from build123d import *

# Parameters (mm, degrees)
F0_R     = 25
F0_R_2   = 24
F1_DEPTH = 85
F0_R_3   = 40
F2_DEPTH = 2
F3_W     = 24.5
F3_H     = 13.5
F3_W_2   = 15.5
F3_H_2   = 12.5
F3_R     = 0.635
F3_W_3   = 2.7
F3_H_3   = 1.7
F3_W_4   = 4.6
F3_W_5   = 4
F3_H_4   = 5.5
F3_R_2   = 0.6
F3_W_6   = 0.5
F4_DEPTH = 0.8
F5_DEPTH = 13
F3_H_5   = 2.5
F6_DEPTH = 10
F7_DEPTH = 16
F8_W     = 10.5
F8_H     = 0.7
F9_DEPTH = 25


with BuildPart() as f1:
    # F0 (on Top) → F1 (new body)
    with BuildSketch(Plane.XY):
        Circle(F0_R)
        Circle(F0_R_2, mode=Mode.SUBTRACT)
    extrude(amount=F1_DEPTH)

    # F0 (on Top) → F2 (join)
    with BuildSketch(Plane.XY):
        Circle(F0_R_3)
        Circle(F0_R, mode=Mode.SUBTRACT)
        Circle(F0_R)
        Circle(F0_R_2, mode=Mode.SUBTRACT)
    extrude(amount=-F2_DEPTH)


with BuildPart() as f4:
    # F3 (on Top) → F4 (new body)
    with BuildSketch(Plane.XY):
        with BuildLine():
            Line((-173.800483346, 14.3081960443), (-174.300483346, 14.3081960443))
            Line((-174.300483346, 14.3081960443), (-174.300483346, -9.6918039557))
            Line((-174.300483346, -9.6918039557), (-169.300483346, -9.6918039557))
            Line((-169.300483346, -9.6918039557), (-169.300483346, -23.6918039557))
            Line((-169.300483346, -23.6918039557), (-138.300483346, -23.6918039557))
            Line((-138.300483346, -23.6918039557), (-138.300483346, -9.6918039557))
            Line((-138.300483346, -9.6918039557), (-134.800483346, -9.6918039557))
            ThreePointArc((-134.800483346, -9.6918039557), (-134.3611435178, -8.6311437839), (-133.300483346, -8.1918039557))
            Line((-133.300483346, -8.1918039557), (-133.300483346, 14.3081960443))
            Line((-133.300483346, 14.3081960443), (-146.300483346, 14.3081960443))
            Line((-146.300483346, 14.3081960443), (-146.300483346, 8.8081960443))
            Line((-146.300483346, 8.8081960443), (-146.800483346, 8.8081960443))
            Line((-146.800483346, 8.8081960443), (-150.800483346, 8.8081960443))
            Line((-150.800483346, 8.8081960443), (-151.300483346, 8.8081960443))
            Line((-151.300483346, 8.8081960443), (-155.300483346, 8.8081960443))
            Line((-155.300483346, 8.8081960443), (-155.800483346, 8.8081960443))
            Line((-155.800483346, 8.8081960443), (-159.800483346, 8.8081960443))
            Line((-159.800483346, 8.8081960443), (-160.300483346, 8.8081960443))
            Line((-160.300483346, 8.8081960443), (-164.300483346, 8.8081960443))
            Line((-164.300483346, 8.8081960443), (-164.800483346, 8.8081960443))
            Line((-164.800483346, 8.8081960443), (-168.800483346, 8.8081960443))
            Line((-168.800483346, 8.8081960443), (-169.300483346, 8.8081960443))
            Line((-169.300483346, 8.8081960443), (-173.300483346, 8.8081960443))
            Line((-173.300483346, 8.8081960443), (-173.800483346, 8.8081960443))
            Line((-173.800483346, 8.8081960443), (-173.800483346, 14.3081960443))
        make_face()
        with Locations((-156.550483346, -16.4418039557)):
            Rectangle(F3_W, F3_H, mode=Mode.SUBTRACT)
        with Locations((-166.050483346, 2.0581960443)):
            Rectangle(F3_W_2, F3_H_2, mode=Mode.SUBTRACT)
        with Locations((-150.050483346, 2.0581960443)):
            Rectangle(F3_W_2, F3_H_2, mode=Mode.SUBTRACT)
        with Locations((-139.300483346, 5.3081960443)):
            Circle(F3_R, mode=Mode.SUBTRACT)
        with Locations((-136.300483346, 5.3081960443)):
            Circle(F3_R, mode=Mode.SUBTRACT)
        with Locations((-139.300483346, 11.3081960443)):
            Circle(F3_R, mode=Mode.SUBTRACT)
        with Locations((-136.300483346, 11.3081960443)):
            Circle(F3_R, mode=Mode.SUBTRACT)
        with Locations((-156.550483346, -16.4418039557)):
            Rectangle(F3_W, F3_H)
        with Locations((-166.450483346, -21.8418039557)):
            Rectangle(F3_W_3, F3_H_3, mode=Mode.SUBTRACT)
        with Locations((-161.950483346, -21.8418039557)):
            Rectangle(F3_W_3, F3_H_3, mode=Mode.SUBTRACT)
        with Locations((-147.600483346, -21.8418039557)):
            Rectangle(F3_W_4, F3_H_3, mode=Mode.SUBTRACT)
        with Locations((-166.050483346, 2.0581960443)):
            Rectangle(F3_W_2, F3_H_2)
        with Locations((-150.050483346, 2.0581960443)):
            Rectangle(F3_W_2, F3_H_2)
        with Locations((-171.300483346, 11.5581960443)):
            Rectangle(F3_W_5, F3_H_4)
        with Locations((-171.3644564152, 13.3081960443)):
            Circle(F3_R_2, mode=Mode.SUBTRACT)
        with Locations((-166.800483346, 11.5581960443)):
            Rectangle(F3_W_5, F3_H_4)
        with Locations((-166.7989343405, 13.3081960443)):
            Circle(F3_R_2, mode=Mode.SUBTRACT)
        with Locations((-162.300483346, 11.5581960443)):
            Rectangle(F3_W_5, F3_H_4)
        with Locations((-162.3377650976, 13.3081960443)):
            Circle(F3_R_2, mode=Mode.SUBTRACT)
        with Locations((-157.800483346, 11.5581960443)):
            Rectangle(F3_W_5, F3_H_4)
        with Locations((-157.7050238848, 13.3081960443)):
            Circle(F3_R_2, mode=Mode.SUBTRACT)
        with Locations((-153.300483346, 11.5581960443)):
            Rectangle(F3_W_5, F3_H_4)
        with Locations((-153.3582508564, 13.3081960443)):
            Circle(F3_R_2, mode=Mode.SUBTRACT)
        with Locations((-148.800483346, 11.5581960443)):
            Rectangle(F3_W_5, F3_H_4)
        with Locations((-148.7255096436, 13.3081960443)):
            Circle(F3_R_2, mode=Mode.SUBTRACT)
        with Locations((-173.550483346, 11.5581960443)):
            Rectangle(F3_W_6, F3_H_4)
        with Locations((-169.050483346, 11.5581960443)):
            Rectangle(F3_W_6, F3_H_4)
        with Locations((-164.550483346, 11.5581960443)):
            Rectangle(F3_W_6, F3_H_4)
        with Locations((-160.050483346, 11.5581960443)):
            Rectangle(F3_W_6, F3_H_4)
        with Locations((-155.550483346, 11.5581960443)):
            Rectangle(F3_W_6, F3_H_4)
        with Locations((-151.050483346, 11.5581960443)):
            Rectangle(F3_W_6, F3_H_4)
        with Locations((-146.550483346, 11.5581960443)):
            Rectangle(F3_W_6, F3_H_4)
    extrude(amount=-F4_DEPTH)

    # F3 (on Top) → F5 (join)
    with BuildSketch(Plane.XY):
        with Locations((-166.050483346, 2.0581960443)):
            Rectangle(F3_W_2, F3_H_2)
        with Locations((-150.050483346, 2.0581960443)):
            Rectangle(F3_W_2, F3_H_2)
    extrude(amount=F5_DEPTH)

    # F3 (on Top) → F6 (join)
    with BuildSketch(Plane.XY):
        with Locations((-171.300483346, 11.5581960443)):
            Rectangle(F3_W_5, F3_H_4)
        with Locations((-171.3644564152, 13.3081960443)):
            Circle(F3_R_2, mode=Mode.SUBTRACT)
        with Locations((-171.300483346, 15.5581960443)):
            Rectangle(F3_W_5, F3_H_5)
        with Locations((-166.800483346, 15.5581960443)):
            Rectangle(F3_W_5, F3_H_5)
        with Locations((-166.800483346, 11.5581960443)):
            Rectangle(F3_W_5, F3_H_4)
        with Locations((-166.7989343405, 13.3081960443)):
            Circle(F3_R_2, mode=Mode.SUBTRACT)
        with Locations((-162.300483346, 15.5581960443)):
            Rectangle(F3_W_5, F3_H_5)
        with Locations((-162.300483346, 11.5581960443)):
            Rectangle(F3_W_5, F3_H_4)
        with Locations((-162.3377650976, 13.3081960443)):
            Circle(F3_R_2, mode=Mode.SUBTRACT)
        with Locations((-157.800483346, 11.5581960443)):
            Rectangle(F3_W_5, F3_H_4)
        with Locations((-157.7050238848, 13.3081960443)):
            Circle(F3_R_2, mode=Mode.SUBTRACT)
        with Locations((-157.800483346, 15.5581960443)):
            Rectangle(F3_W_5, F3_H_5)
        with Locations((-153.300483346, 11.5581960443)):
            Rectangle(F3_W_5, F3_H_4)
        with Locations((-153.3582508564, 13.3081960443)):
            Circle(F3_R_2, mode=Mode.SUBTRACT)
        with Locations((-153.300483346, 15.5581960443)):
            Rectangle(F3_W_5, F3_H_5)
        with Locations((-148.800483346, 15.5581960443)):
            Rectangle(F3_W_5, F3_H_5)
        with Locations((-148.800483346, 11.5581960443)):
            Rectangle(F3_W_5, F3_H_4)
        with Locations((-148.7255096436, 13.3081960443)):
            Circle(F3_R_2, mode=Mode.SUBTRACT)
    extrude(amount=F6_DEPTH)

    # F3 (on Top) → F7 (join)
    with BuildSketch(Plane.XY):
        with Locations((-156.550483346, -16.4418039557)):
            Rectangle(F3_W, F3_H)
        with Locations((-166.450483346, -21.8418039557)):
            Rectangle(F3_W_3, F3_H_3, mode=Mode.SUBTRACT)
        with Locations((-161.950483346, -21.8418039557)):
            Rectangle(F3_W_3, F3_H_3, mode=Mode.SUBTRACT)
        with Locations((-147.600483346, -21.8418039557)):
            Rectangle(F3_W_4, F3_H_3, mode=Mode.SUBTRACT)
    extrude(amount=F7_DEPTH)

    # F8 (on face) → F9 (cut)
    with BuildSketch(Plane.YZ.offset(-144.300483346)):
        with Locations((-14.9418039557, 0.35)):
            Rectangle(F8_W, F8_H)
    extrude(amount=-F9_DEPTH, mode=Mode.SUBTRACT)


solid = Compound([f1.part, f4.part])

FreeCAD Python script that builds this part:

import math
import FreeCAD as App
import Part
import Sketcher
from FreeCAD import Vector


def add_polygon(sketch, points):
    """Adds a closed chain of lines whose ends are joined by coincident constraints."""
    first, n = sketch.GeometryCount, len(points)
    for a, b in zip(points, points[1:] + points[:1]):
        sketch.addGeometry(Part.LineSegment(App.Vector(*a, 0), App.Vector(*b, 0)), False)
    for i in range(n):
        sketch.addConstraint(Sketcher.Constraint("Coincident", first + i, 2, first + (i + 1) % n, 1))

doc = App.newDocument("Part")
body = doc.addObject("PartDesign::Body", "Body")

# Sketch on XY plane
sketch1 = body.newObject("Sketcher::SketchObject", "Sketch")
sketch1.AttachmentSupport = (doc.getObject("XY_Plane"), [""])
sketch1.MapMode = "FlatFace"
sketch1.addGeometry([
    Part.Circle(Vector(0, 0, 0), Vector(0, 0, 1), 25),
    Part.Circle(Vector(0, 0, 0), Vector(0, 0, 1), 24),
], False)
sketch1.addConstraint([
    Sketcher.Constraint("Coincident", 0, 3, -1, 1),
    Sketcher.Constraint("Coincident", 1, 3, -1, 1),
    Sketcher.Constraint("Diameter", 0, 50.0),
    Sketcher.Constraint("Diameter", 1, 48.0),
])
pad1 = body.newObject("PartDesign::Pad", "Pad")
pad1.Profile = sketch1
pad1.Length = 85

# Sketch on XY plane
sketch2 = body.newObject("Sketcher::SketchObject", "Sketch001")
sketch2.AttachmentSupport = (doc.getObject("XY_Plane"), [""])
sketch2.MapMode = "FlatFace"
sketch2.addGeometry([
    Part.Circle(Vector(0, 0, 0), Vector(0, 0, 1), 40),
    Part.Circle(Vector(0, 0, 0), Vector(0, 0, 1), 24),
], False)
sketch2.addConstraint([
    Sketcher.Constraint("Coincident", 0, 3, -1, 1),
    Sketcher.Constraint("Coincident", 1, 3, -1, 1),
    Sketcher.Constraint("Diameter", 0, 80.0),
    Sketcher.Constraint("Diameter", 1, 48.0),
])
pad2 = body.newObject("PartDesign::Pad", "Pad001")
pad2.Profile = sketch2
pad2.Length = 2
pad2.Reversed = True
body2 = doc.addObject("PartDesign::Body", "Body001")

# Sketch on XY plane
sketch3 = body2.newObject("Sketcher::SketchObject", "Sketch002")
sketch3.AttachmentSupport = (doc.getObject("XY_Plane001"), [""])
sketch3.MapMode = "FlatFace"
sketch3.addGeometry(Part.LineSegment(Vector(-174.3, 14.3, 0), Vector(-174.3, -9.7, 0)), False)  # 0
sketch3.addGeometry(Part.LineSegment(Vector(-174.3, -9.7, 0), Vector(-169.3, -9.7, 0)), False)  # 1
sketch3.addGeometry(Part.LineSegment(Vector(-169.3, -9.7, 0), Vector(-169.3, -23.7, 0)), False)  # 2
sketch3.addGeometry(Part.LineSegment(Vector(-169.3, -23.7, 0), Vector(-138.3, -23.7, 0)), False)  # 3
sketch3.addGeometry(Part.LineSegment(Vector(-138.3, -23.7, 0), Vector(-138.3, -9.7, 0)), False)  # 4
sketch3.addGeometry(Part.LineSegment(Vector(-138.3, -9.7, 0), Vector(-134.8, -9.7, 0)), False)  # 5
sketch3.addGeometry(Part.ArcOfCircle(Part.Circle(Vector(-133.3, -9.7, 0), Vector(0, 0, 1), 1.5), math.radians(90), math.radians(180)), False)  # 6
sketch3.addGeometry(Part.LineSegment(Vector(-133.3, -8.2, 0), Vector(-133.3, 14.3, 0)), False)  # 7
sketch3.addGeometry(Part.LineSegment(Vector(-133.3, 14.3, 0), Vector(-174.3, 14.3, 0)), False)  # 8
add_polygon(sketch3, [(-165.1, -22.7), (-167.8, -22.7), (-167.8, -21), (-165.1, -21)])  # lines 9-12
add_polygon(sketch3, [(-160.6, -22.7), (-163.3, -22.7), (-163.3, -21), (-160.6, -21)])  # lines 13-16
add_polygon(sketch3, [(-145.3, -22.7), (-149.9, -22.7), (-149.9, -21), (-145.3, -21)])  # lines 17-20
sketch3.addGeometry(Part.Circle(Vector(-171.4, 13.3, 0), Vector(0, 0, 1), 0.6), False)  # 21
sketch3.addGeometry(Part.Circle(Vector(-166.8, 13.3, 0), Vector(0, 0, 1), 0.6), False)  # 22
sketch3.addGeometry(Part.Circle(Vector(-162.3, 13.3, 0), Vector(0, 0, 1), 0.6), False)  # 23
sketch3.addGeometry(Part.Circle(Vector(-157.7, 13.3, 0), Vector(0, 0, 1), 0.6), False)  # 24
sketch3.addGeometry(Part.Circle(Vector(-153.4, 13.3, 0), Vector(0, 0, 1), 0.6), False)  # 25
sketch3.addGeometry(Part.Circle(Vector(-148.7, 13.3, 0), Vector(0, 0, 1), 0.6), False)  # 26
sketch3.addGeometry(Part.Circle(Vector(-139.3, 5.3, 0), Vector(0, 0, 1), 0.6), False)  # 27
sketch3.addGeometry(Part.Circle(Vector(-136.3, 5.3, 0), Vector(0, 0, 1), 0.6), False)  # 28
sketch3.addGeometry(Part.Circle(Vector(-139.3, 11.3, 0), Vector(0, 0, 1), 0.6), False)  # 29
sketch3.addGeometry(Part.Circle(Vector(-136.3, 11.3, 0), Vector(0, 0, 1), 0.6), False)  # 30
sketch3.addConstraint([
    Sketcher.Constraint("Coincident", 0, 2, 1, 1),
    Sketcher.Constraint("Coincident", 1, 2, 2, 1),
    Sketcher.Constraint("Coincident", 2, 2, 3, 1),
    Sketcher.Constraint("Coincident", 3, 2, 4, 1),
    Sketcher.Constraint("Coincident", 4, 2, 5, 1),
    Sketcher.Constraint("Coincident", 5, 2, 6, 2),
    Sketcher.Constraint("Coincident", 6, 1, 7, 1),
    Sketcher.Constraint("Coincident", 7, 2, 8, 1),
    Sketcher.Constraint("Coincident", 8, 2, 0, 1),
    Sketcher.Constraint("Vertical", 0),
    Sketcher.Constraint("Horizontal", 1),
    Sketcher.Constraint("Vertical", 2),
    Sketcher.Constraint("Horizontal", 3),
    Sketcher.Constraint("Vertical", 4),
    Sketcher.Constraint("Horizontal", 5),
    Sketcher.Constraint("Vertical", 7),
    Sketcher.Constraint("Horizontal", 8),
    Sketcher.Constraint("Horizontal", 9),
    Sketcher.Constraint("Vertical", 10),
    Sketcher.Constraint("Horizontal", 11),
    Sketcher.Constraint("Vertical", 12),
    Sketcher.Constraint("Horizontal", 13),
    Sketcher.Constraint("Vertical", 14),
    Sketcher.Constraint("Horizontal", 15),
    Sketcher.Constraint("Vertical", 16),
    Sketcher.Constraint("Horizontal", 17),
    Sketcher.Constraint("Vertical", 18),
    Sketcher.Constraint("Horizontal", 19),
    Sketcher.Constraint("Vertical", 20),
    Sketcher.Constraint("Equal", 21, 22),
    Sketcher.Constraint("Equal", 22, 23),
    Sketcher.Constraint("Equal", 23, 24),
    Sketcher.Constraint("Equal", 24, 25),
    Sketcher.Constraint("Equal", 25, 26),
    Sketcher.Constraint("Equal", 27, 28),
    Sketcher.Constraint("Equal", 28, 29),
    Sketcher.Constraint("Equal", 29, 30),
    Sketcher.Constraint("Horizontal", 21, 3, 22, 3),
    Sketcher.Constraint("Horizontal", 22, 3, 23, 3),
    Sketcher.Constraint("Horizontal", 23, 3, 24, 3),
    Sketcher.Constraint("Horizontal", 24, 3, 25, 3),
    Sketcher.Constraint("Horizontal", 25, 3, 26, 3),
    Sketcher.Constraint("Horizontal", 27, 3, 28, 3),
    Sketcher.Constraint("Horizontal", 29, 3, 30, 3),
    Sketcher.Constraint("Horizontal", 6, 3, 0, 2),
    Sketcher.Constraint("Horizontal", 1, 2, 4, 2),
    Sketcher.Constraint("Horizontal", 12, 2, 13, 2),
    Sketcher.Constraint("Horizontal", 11, 2, 14, 2),
    Sketcher.Constraint("Horizontal", 16, 2, 17, 2),
    Sketcher.Constraint("Horizontal", 15, 2, 18, 2),
    Sketcher.Constraint("Vertical", 27, 3, 29, 3),
    Sketcher.Constraint("Vertical", 28, 3, 30, 3),
    Sketcher.Constraint("Equal", 11, 13),
    Sketcher.Constraint("Diameter", 21, 1.2),
    Sketcher.Constraint("Radius", 6, 1.5),
    Sketcher.Constraint("Diameter", 27, 1.27),
    Sketcher.Constraint("DistanceX", 1, 1, 1, 2, 5.0),
    Sketcher.Constraint("DistanceX", 3, 1, 3, 2, 31.0),
    Sketcher.Constraint("DistanceX", 8, 2, 8, 1, 41.0),
    Sketcher.Constraint("DistanceY", 0, 2, 0, 1, 24.0),
    Sketcher.Constraint("DistanceY", 2, 2, 2, 1, 14.0),
    Sketcher.Constraint("DistanceX", 5, 1, 5, 2, 3.5),
    Sketcher.Constraint("DistanceX", 9, 2, 9, 1, 2.7),
    Sketcher.Constraint("DistanceX", 17, 2, 17, 1, 4.6),
    Sketcher.Constraint("DistanceY", 10, 1, 10, 2, 1.7),
    Sketcher.Constraint("DistanceY", 6, 3, 21, 3, 23.0),
    Sketcher.Constraint("DistanceY", 27, 3, 26, 3, 8.0),
    Sketcher.Constraint("DistanceX", 27, 3, 6, 3, 6.0),
    Sketcher.Constraint("DistanceX", 27, 3, 28, 3, 3.0),
    Sketcher.Constraint("DistanceY", 27, 3, 29, 3, 6.0),
    Sketcher.Constraint("DistanceY", 2, 2, 9, 2, 1.0),
    Sketcher.Constraint("DistanceX", 2, 2, 13, 2, 6.0),
    Sketcher.Constraint("DistanceX", 19, 2, 3, 2, 7.0),
    Sketcher.Constraint("DistanceX", 2, 2, 9, 2, 1.5),
    Sketcher.Constraint("DistanceX", 25, 3, -1, 1, 153.358251),
    Sketcher.Constraint("DistanceX", 26, 3, -1, 1, 148.72551),
    Sketcher.Constraint("DistanceX", 22, 3, 6, 3, 33.498451),
    Sketcher.Constraint("DistanceX", 22, 3, 23, 3, 4.461169),
    Sketcher.Constraint("DistanceX", 21, 3, 23, 3, 9.026691),
    Sketcher.Constraint("DistanceX", 23, 3, 24, 3, 4.632741),
    Sketcher.Constraint("DistanceX", 6, 3, -1, 1, 133.300483),
    Sketcher.Constraint("DistanceY", 6, 3, -1, 1, 9.691804),
])
pad3 = body2.newObject("PartDesign::Pad", "Pad002")
pad3.Profile = sketch3
pad3.Length = 0.8
pad3.Reversed = True

# Sketch on XY plane
sketch4 = body2.newObject("Sketcher::SketchObject", "Sketch003")
sketch4.AttachmentSupport = (doc.getObject("XY_Plane001"), [""])
sketch4.MapMode = "FlatFace"
add_polygon(sketch4, [(-174, 8), (-174, -4), (-158, -4), (-158, 8)])  # lines 0-3
add_polygon(sketch4, [(-158, 8), (-158, -4), (-142, -4), (-142, 8)])  # lines 4-7
sketch4.addConstraint([
    Sketcher.Constraint("Vertical", 0),
    Sketcher.Constraint("Horizontal", 1),
    Sketcher.Constraint("Vertical", 2),
    Sketcher.Constraint("Horizontal", 3),
    Sketcher.Constraint("Vertical", 4),
    Sketcher.Constraint("Horizontal", 5),
    Sketcher.Constraint("Vertical", 6),
    Sketcher.Constraint("Horizontal", 7),
    Sketcher.Constraint("Horizontal", 1, 2, 4, 2),
    Sketcher.Constraint("Horizontal", 3, 2, 6, 2),
    Sketcher.Constraint("Equal", 3, 5),
    Sketcher.Constraint("DistanceX", 1, 1, 1, 2, 15.5),
    Sketcher.Constraint("DistanceY", 0, 2, 0, 1, 12.5),
    Sketcher.Constraint("DistanceX", 0, 2, 4, 2, 16.0),
    Sketcher.Constraint("DistanceX", 0, 2, -1, 1, 173.800483),
    Sketcher.Constraint("DistanceY", 0, 2, -1, 1, 4.191804),
])
pad4 = body2.newObject("PartDesign::Pad", "Pad003")
pad4.Profile = sketch4
pad4.Length = 13

# Sketch on XY plane
sketch5 = body2.newObject("Sketcher::SketchObject", "Sketch004")
sketch5.AttachmentSupport = (doc.getObject("XY_Plane001"), [""])
sketch5.MapMode = "FlatFace"
add_polygon(sketch5, [(-173.3, 8.8), (-169.3, 8.8), (-169.3, 16.8), (-173.3, 16.8)])  # lines 0-3
sketch5.addGeometry(Part.Circle(Vector(-171.4, 13.3, 0), Vector(0, 0, 1), 0.6), False)  # 4
add_polygon(sketch5, [(-168.8, 16.8), (-168.8, 8.8), (-164.8, 8.8), (-164.8, 16.8)])  # lines 5-8
sketch5.addGeometry(Part.Circle(Vector(-166.8, 13.3, 0), Vector(0, 0, 1), 0.6), False)  # 9
add_polygon(sketch5, [(-164.3, 16.8), (-164.3, 8.8), (-160.3, 8.8), (-160.3, 16.8)])  # lines 10-13
sketch5.addGeometry(Part.Circle(Vector(-162.3, 13.3, 0), Vector(0, 0, 1), 0.6), False)  # 14
add_polygon(sketch5, [(-159.8, 8.8), (-155.8, 8.8), (-155.8, 16.8), (-159.8, 16.8)])  # lines 15-18
sketch5.addGeometry(Part.Circle(Vector(-157.7, 13.3, 0), Vector(0, 0, 1), 0.6), False)  # 19
add_polygon(sketch5, [(-155.3, 8.8), (-151.3, 8.8), (-151.3, 16.8), (-155.3, 16.8)])  # lines 20-23
sketch5.addGeometry(Part.Circle(Vector(-153.4, 13.3, 0), Vector(0, 0, 1), 0.6), False)  # 24
add_polygon(sketch5, [(-150.8, 16.8), (-150.8, 8.8), (-146.8, 8.8), (-146.8, 16.8)])  # lines 25-28
sketch5.addGeometry(Part.Circle(Vector(-148.7, 13.3, 0), Vector(0, 0, 1), 0.6), False)  # 29
sketch5.addConstraint([
    Sketcher.Constraint("Horizontal", 0),
    Sketcher.Constraint("Vertical", 1),
    Sketcher.Constraint("Horizontal", 2),
    Sketcher.Constraint("Vertical", 3),
    Sketcher.Constraint("Vertical", 5),
    Sketcher.Constraint("Horizontal", 6),
    Sketcher.Constraint("Vertical", 7),
    Sketcher.Constraint("Horizontal", 8),
    Sketcher.Constraint("Vertical", 10),
    Sketcher.Constraint("Horizontal", 11),
    Sketcher.Constraint("Vertical", 12),
    Sketcher.Constraint("Horizontal", 13),
    Sketcher.Constraint("Horizontal", 15),
    Sketcher.Constraint("Vertical", 16),
    Sketcher.Constraint("Horizontal", 17),
    Sketcher.Constraint("Vertical", 18),
    Sketcher.Constraint("Horizontal", 20),
    Sketcher.Constraint("Vertical", 21),
    Sketcher.Constraint("Horizontal", 22),
    Sketcher.Constraint("Vertical", 23),
    Sketcher.Constraint("Vertical", 25),
    Sketcher.Constraint("Horizontal", 26),
    Sketcher.Constraint("Vertical", 27),
    Sketcher.Constraint("Horizontal", 28),
    Sketcher.Constraint("Equal", 4, 9),
    Sketcher.Constraint("Equal", 9, 14),
    Sketcher.Constraint("Equal", 14, 19),
    Sketcher.Constraint("Equal", 19, 24),
    Sketcher.Constraint("Equal", 24, 29),
    Sketcher.Constraint("Horizontal", 4, 3, 9, 3),
    Sketcher.Constraint("Horizontal", 9, 3, 14, 3),
    Sketcher.Constraint("Horizontal", 14, 3, 19, 3),
    Sketcher.Constraint("Horizontal", 19, 3, 24, 3),
    Sketcher.Constraint("Horizontal", 24, 3, 29, 3),
    Sketcher.Constraint("Horizontal", 3, 2, 5, 2),
    Sketcher.Constraint("Horizontal", 2, 2, 7, 2),
    Sketcher.Constraint("Horizontal", 6, 2, 10, 2),
    Sketcher.Constraint("Horizontal", 8, 2, 12, 2),
    Sketcher.Constraint("Horizontal", 11, 2, 15, 2),
    Sketcher.Constraint("Horizontal", 13, 2, 16, 2),
    Sketcher.Constraint("Horizontal", 18, 2, 20, 2),
    Sketcher.Constraint("Horizontal", 17, 2, 21, 2),
    Sketcher.Constraint("Horizontal", 23, 2, 25, 2),
    Sketcher.Constraint("Horizontal", 22, 2, 27, 2),
    Sketcher.Constraint("Equal", 2, 6),
    Sketcher.Constraint("Equal", 8, 11),
    Sketcher.Constraint("Equal", 13, 15),
    Sketcher.Constraint("Equal", 17, 20),
    Sketcher.Constraint("Equal", 22, 26),
    Sketcher.Constraint("Diameter", 4, 1.2),
    Sketcher.Constraint("DistanceX", 0, 1, 0, 2, 4.0),
    Sketcher.Constraint("DistanceY", 1, 1, 1, 2, 8.0),
    Sketcher.Constraint("DistanceX", 0, 2, 10, 2, 5.0),
    Sketcher.Constraint("DistanceX", 6, 2, 18, 2, 5.0),
    Sketcher.Constraint("DistanceX", 11, 2, 23, 2, 5.0),
    Sketcher.Constraint("DistanceX", 15, 2, 25, 2, 5.0),
    Sketcher.Constraint("DistanceY", 0, 2, 4, 3, 4.5),
    Sketcher.Constraint("DistanceX", 0, 2, 5, 2, 0.5),
    Sketcher.Constraint("DistanceX", 24, 3, -1, 1, 153.358251),
    Sketcher.Constraint("DistanceX", 29, 3, -1, 1, 148.72551),
    Sketcher.Constraint("DistanceX", 9, 3, 14, 3, 4.461169),
    Sketcher.Constraint("DistanceX", 4, 3, 14, 3, 9.026691),
    Sketcher.Constraint("DistanceX", 14, 3, 19, 3, 4.632741),
    Sketcher.Constraint("DistanceX", 0, 2, 9, 3, 2.501549),
    Sketcher.Constraint("DistanceX", 4, 3, -1, 1, 171.364456),
    Sketcher.Constraint("DistanceY", -1, 1, 4, 3, 13.308196),
])
pad5 = body2.newObject("PartDesign::Pad", "Pad004")
pad5.Profile = sketch5
pad5.Length = 10

# Sketch on XY plane
sketch6 = body2.newObject("Sketcher::SketchObject", "Sketch005")
sketch6.AttachmentSupport = (doc.getObject("XY_Plane001"), [""])
sketch6.MapMode = "FlatFace"
add_polygon(sketch6, [(-168.8, -9.7), (-168.8, -23.2), (-144.3, -23.2), (-144.3, -9.7)])  # lines 0-3
add_polygon(sketch6, [(-165.1, -22.7), (-167.8, -22.7), (-167.8, -21), (-165.1, -21)])  # lines 4-7
add_polygon(sketch6, [(-160.6, -22.7), (-163.3, -22.7), (-163.3, -21), (-160.6, -21)])  # lines 8-11
add_polygon(sketch6, [(-145.3, -22.7), (-149.9, -22.7), (-149.9, -21), (-145.3, -21)])  # lines 12-15
sketch6.addConstraint([
    Sketcher.Constraint("Vertical", 0),
    Sketcher.Constraint("Horizontal", 1),
    Sketcher.Constraint("Vertical", 2),
    Sketcher.Constraint("Horizontal", 3),
    Sketcher.Constraint("Horizontal", 4),
    Sketcher.Constraint("Vertical", 5),
    Sketcher.Constraint("Horizontal", 6),
    Sketcher.Constraint("Vertical", 7),
    Sketcher.Constraint("Horizontal", 8),
    Sketcher.Constraint("Vertical", 9),
    Sketcher.Constraint("Horizontal", 10),
    Sketcher.Constraint("Vertical", 11),
    Sketcher.Constraint("Horizontal", 12),
    Sketcher.Constraint("Vertical", 13),
    Sketcher.Constraint("Horizontal", 14),
    Sketcher.Constraint("Vertical", 15),
    Sketcher.Constraint("Horizontal", 7, 2, 8, 2),
    Sketcher.Constraint("Horizontal", 6, 2, 9, 2),
    Sketcher.Constraint("Horizontal", 11, 2, 12, 2),
    Sketcher.Constraint("Horizontal", 10, 2, 13, 2),
    Sketcher.Constraint("Equal", 6, 8),
    Sketcher.Constraint("DistanceX", 1, 1, 1, 2, 24.5),
    Sketcher.Constraint("DistanceX", 4, 2, 4, 1, 2.7),
    Sketcher.Constraint("DistanceX", 12, 2, 12, 1, 4.6),
    Sketcher.Constraint("DistanceY", 0, 2, 0, 1, 13.5),
    Sketcher.Constraint("DistanceY", 5, 1, 5, 2, 1.7),
    Sketcher.Constraint("DistanceX", 0, 2, 4, 2, 1.0),
    Sketcher.Constraint("DistanceY", 4, 2, 3, 2, 13.0),
    Sketcher.Constraint("DistanceX", 14, 2, 1, 2, 1.0),
    Sketcher.Constraint("DistanceX", 7, 2, 8, 2, 1.8),
    Sketcher.Constraint("DistanceX", 0, 2, -1, 1, 168.800483),
    Sketcher.Constraint("DistanceY", 0, 2, -1, 1, 23.191804),
])
pad6 = body2.newObject("PartDesign::Pad", "Pad005")
pad6.Profile = sketch6
pad6.Length = 16

# Sketch on YZ plane
sketch7 = body2.newObject("Sketcher::SketchObject", "Sketch006")
sketch7.AttachmentSupport = (doc.getObject("YZ_Plane001"), [""])
sketch7.MapMode = "FlatFace"
sketch7.AttachmentOffset = App.Placement(Vector(0, 0, -144.300483), App.Rotation())
add_polygon(sketch7, [(-20.2, 0.7), (-20.2, 0), (-9.7, 0), (-9.7, 0.7)])  # lines 0-3
sketch7.addConstraint([
    Sketcher.Constraint("Vertical", 0),
    Sketcher.Constraint("Horizontal", 1),
    Sketcher.Constraint("Vertical", 2),
    Sketcher.Constraint("Horizontal", 3),
    Sketcher.Constraint("PointOnObject", 0, 2, -1),
    Sketcher.Constraint("DistanceX", 1, 1, 1, 2, 10.5),
    Sketcher.Constraint("DistanceY", 0, 2, 0, 1, 0.7),
    Sketcher.Constraint("DistanceX", 0, 2, -1, 1, 20.191804),
])
pocket1 = body2.newObject("PartDesign::Pocket", "Pocket")
pocket1.Profile = sketch7
pocket1.Length = 25

doc.recompute()
